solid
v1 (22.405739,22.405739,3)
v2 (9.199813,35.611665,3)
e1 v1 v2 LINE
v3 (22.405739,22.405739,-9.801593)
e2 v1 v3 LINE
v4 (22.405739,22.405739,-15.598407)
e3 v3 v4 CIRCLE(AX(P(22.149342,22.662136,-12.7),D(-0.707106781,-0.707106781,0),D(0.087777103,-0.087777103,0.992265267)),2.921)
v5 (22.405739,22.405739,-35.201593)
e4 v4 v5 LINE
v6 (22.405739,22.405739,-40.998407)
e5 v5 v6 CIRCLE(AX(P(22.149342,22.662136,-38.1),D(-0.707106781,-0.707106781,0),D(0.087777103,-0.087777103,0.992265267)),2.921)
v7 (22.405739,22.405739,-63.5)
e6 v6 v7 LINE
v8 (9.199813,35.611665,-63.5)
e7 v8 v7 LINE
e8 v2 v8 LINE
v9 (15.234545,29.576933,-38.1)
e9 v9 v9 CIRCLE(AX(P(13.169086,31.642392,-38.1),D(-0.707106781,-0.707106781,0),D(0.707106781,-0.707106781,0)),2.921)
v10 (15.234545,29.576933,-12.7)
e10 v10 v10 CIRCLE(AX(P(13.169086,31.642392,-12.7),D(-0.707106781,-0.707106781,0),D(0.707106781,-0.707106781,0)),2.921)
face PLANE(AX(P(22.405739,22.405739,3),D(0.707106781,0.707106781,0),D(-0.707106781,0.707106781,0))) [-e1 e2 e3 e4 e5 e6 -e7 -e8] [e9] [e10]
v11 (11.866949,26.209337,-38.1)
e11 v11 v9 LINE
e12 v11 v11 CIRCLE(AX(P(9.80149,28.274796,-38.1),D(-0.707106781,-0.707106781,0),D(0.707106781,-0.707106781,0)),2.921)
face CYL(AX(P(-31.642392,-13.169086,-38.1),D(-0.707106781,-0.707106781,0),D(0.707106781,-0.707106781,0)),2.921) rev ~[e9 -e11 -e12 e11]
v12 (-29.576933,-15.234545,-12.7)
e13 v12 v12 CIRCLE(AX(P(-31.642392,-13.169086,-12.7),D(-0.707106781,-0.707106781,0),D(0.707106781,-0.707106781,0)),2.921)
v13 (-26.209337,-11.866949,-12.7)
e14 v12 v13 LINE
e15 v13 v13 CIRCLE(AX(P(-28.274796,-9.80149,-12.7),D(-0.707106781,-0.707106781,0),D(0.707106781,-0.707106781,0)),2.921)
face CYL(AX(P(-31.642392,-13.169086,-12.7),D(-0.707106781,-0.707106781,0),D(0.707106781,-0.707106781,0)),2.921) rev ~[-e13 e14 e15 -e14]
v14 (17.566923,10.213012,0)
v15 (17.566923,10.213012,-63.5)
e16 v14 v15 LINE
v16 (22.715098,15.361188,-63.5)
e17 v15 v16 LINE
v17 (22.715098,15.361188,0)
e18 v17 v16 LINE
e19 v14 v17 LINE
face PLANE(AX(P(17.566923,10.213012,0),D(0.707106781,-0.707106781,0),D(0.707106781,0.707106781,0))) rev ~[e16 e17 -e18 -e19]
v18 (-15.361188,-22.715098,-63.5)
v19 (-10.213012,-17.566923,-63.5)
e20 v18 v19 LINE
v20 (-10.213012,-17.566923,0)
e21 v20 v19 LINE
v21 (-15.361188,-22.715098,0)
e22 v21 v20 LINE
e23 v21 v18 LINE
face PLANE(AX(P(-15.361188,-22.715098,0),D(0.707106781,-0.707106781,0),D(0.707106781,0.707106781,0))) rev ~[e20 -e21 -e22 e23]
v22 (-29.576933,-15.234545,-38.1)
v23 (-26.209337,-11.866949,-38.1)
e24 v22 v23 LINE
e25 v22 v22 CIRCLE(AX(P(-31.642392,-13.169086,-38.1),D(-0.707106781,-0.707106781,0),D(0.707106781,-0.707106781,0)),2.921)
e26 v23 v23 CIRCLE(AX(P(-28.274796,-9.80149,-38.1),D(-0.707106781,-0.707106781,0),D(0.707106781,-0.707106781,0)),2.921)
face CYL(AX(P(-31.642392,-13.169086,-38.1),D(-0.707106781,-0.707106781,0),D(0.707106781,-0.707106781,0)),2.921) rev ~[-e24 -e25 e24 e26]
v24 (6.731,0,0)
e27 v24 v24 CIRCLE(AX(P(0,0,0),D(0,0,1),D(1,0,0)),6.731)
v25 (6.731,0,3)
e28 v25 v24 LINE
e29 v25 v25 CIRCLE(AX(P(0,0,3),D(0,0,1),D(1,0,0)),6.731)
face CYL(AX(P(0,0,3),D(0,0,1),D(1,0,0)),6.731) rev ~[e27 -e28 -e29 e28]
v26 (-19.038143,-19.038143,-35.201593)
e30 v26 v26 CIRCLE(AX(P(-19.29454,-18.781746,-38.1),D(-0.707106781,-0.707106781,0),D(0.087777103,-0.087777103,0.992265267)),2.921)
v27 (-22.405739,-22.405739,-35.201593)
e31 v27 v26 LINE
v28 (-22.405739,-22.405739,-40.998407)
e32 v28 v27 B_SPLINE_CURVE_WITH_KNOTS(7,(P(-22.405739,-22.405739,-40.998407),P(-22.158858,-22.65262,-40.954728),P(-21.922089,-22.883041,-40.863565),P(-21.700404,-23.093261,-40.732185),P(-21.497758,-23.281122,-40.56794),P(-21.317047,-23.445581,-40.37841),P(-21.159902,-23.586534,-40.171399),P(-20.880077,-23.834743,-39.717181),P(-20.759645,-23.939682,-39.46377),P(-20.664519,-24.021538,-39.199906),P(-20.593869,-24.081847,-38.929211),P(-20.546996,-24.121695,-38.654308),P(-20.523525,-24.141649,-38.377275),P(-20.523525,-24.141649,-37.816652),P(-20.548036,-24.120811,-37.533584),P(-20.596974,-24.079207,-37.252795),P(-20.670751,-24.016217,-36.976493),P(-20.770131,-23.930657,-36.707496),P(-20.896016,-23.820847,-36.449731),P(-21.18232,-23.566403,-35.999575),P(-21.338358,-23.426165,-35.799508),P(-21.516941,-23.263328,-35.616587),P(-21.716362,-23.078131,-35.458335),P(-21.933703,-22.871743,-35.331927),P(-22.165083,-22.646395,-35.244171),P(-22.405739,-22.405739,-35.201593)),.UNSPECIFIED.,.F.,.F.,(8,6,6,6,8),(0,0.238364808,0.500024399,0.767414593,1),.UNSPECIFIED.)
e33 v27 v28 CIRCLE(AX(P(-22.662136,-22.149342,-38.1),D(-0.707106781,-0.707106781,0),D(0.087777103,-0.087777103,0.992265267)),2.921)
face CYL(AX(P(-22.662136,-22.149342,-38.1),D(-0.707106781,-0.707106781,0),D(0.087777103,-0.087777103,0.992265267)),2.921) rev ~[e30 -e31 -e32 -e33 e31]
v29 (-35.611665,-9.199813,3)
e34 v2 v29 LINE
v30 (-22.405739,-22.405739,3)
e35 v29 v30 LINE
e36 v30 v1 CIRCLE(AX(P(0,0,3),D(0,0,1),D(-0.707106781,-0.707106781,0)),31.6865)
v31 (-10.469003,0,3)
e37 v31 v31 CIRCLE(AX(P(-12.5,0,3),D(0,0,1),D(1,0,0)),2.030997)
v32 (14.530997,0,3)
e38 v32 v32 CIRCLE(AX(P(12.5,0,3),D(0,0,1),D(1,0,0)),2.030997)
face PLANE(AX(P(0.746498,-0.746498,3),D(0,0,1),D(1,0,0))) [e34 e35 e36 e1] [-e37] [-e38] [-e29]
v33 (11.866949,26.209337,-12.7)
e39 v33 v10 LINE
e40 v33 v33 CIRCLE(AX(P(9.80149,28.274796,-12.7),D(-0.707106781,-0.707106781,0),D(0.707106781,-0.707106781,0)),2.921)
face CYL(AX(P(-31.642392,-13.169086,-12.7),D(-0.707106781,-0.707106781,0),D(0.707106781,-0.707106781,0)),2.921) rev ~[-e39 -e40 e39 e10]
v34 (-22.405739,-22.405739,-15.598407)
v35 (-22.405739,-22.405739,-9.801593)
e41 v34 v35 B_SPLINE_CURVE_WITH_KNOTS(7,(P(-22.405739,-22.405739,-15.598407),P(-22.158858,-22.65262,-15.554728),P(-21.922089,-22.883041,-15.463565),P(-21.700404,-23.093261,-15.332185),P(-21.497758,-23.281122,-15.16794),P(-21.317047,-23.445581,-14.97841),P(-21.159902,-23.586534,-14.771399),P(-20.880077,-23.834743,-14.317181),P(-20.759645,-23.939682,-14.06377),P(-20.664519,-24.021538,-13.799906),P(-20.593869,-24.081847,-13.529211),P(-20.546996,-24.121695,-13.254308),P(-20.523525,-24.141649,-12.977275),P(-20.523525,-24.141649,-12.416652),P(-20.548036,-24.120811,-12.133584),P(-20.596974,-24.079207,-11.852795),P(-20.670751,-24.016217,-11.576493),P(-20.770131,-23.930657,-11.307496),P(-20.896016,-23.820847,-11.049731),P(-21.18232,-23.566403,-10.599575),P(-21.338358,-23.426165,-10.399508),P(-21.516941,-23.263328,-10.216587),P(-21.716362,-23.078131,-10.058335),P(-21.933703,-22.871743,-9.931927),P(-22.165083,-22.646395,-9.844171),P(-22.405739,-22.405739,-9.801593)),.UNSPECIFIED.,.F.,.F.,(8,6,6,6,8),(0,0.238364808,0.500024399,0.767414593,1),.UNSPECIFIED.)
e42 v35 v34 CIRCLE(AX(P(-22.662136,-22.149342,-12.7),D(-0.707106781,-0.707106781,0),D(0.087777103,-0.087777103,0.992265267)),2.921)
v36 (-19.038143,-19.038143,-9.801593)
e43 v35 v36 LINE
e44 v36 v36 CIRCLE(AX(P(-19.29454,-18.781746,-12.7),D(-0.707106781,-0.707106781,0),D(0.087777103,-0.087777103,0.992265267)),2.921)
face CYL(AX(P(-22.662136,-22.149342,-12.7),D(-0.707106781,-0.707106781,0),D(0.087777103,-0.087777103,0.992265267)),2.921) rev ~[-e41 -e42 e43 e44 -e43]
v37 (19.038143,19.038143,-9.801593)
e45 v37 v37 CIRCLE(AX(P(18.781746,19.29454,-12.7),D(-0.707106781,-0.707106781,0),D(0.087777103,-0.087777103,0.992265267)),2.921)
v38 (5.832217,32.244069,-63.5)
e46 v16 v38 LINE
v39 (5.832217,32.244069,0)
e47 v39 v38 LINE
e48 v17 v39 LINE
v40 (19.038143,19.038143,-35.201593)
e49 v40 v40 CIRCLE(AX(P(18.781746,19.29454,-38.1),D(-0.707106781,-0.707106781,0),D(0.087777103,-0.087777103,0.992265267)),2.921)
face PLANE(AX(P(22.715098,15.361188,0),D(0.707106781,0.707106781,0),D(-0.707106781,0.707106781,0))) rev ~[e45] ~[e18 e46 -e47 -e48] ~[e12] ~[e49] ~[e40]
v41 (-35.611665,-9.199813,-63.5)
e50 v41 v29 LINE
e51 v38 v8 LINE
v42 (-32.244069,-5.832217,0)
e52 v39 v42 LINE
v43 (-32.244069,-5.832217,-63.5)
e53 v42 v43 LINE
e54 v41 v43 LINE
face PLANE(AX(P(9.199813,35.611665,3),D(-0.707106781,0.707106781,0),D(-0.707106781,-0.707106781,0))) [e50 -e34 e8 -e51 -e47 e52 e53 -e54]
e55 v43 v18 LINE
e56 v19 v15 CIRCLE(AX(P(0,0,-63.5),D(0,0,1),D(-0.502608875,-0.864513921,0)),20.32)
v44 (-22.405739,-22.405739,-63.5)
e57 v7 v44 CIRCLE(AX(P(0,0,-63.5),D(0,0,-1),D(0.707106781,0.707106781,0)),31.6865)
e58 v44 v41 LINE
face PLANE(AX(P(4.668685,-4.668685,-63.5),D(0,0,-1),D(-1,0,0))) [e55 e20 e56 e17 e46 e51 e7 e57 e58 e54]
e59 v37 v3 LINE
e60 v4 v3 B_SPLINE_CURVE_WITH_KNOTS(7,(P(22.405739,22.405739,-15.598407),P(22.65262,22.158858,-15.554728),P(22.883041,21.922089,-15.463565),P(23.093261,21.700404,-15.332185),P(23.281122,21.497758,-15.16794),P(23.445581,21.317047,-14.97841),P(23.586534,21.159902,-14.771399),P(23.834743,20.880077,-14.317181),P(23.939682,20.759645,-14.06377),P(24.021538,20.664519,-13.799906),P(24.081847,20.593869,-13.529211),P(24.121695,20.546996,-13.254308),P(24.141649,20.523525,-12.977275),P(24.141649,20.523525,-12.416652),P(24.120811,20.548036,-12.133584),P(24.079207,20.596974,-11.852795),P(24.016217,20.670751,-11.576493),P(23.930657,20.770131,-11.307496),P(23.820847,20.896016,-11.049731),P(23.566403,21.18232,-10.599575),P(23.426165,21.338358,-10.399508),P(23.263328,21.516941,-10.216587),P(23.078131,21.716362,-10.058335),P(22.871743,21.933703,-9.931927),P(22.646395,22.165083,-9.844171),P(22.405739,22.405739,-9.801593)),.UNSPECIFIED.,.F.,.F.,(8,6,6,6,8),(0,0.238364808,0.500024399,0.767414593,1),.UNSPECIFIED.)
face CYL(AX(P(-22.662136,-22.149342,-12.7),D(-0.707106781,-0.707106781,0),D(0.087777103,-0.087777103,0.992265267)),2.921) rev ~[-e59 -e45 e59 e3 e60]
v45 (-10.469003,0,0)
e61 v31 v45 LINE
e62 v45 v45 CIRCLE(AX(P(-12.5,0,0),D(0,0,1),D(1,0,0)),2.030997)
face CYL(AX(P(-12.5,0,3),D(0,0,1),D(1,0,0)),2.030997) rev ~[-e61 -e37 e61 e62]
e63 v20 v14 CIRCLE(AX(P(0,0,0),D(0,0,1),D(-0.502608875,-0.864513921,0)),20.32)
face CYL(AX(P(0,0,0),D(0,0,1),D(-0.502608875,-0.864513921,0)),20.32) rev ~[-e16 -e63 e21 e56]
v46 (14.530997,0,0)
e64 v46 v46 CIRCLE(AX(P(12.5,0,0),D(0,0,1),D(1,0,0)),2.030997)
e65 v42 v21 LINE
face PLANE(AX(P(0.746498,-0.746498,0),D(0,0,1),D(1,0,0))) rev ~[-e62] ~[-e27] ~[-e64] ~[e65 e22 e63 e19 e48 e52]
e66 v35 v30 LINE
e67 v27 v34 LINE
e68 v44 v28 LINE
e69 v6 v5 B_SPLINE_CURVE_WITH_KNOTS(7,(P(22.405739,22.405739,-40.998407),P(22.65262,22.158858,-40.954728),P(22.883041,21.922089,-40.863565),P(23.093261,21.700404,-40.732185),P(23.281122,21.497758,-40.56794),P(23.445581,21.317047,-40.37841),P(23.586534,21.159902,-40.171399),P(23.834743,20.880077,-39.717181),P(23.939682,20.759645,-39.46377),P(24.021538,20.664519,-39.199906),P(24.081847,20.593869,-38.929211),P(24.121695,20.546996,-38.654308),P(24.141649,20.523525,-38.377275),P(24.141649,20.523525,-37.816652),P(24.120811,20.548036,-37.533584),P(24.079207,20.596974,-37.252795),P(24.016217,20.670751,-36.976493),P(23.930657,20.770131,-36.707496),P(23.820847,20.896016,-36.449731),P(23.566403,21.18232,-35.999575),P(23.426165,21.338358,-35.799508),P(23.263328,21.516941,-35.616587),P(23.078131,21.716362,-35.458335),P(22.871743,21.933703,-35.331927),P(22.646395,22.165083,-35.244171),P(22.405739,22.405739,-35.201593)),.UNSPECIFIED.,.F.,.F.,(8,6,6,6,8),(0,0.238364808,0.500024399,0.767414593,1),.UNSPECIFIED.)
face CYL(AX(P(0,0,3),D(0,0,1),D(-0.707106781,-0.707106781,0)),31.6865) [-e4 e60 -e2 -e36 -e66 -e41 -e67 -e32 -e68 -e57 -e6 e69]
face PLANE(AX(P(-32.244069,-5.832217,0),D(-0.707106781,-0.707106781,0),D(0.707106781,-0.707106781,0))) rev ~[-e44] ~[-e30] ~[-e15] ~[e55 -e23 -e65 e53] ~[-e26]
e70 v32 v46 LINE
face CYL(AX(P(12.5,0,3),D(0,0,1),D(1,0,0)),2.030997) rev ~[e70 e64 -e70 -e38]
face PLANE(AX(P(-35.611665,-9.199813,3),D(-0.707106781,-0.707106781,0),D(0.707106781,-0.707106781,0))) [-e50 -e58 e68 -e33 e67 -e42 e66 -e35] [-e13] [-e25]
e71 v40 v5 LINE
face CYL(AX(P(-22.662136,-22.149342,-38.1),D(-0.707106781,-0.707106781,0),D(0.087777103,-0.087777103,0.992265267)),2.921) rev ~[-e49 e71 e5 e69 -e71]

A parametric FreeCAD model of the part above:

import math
import FreeCAD as App
import Part
import Sketcher
from FreeCAD import Vector
Q = App.Units.Quantity

doc = App.newDocument("Part")
params = doc.addObject("Spreadsheet::Sheet", "Params")
for row, (alias, value) in enumerate([
    ("sketch1_radius", "0.8 in"),
    ("sketch1_length", "0.94 in"),
    ("sketch1_length2", "0.1875 in"),
    ("pad1_length", "2.5 in"),
    ("sketch2_diameter", "0.53 in"),
    ("pad2_length", "3 mm"),
    ("sketch3_diameter", "0.23 in"),
], start=1):
    params.set(f"A{row}", alias)
    params.set(f"B{row}", "=" + value)
    params.setAlias(f"B{row}", alias)

body = doc.addObject("PartDesign::Body", "Body")

sketch1 = doc.addObject("Sketcher::SketchObject", "Sketch")
body.addObject(sketch1)
sketch1.AttachmentSupport = (doc.XY_Plane, [""])
sketch1.MapMode = "FlatFace"
sketch1.addGeometry([
    Part.LineSegment(Vector(9.199813, 35.611665, 0), Vector(5.832217, 32.244069, 0)),
    Part.LineSegment(Vector(5.832217, 32.244069, 0), Vector(22.715098, 15.361188, 0)),
    Part.LineSegment(Vector(22.715098, 15.361188, 0), Vector(17.566923, 10.213012, 0)),
    Part.ArcOfCircle(Part.Circle(Vector(0, 0, 0), Vector(0, 0, 1), 20.32), math.radians(-120.172752), math.radians(30.172752)),
    Part.LineSegment(Vector(-10.213012, -17.566923, 0), Vector(-15.361188, -22.715098, 0)),
    Part.LineSegment(Vector(-15.361188, -22.715098, 0), Vector(-32.244069, -5.832217, 0)),
    Part.LineSegment(Vector(-32.244069, -5.832217, 0), Vector(-35.611665, -9.199813, 0)),
    Part.LineSegment(Vector(-35.611665, -9.199813, 0), Vector(-22.405739, -22.405739, 0)),
    Part.ArcOfCircle(Part.Circle(Vector(0, 0, 0), Vector(0, 0, 1), 31.6865), math.radians(-135), math.radians(45)),
    Part.LineSegment(Vector(22.405739, 22.405739, 0), Vector(9.199813, 35.611665, 0)),
], False)
sketch1.addConstraint([
    Sketcher.Constraint("Coincident", 0, 2, 1, 1),
    Sketcher.Constraint("Coincident", 1, 2, 2, 1),
    Sketcher.Constraint("Coincident", 2, 2, 3, 2),
    Sketcher.Constraint("Coincident", 3, 1, 4, 1),
    Sketcher.Constraint("Coincident", 4, 2, 5, 1),
    Sketcher.Constraint("Coincident", 5, 2, 6, 1),
    Sketcher.Constraint("Coincident", 6, 2, 7, 1),
    Sketcher.Constraint("Tangent", 7, 2, 8, 1),
    Sketcher.Constraint("Tangent", 8, 2, 9, 1),
    Sketcher.Constraint("Coincident", 9, 2, 0, 1),
    Sketcher.Constraint("Coincident", 3, 3, -1, 1),
    Sketcher.Constraint("Coincident", 8, 3, -1, 1),
    Sketcher.Constraint("Perpendicular", 0, 1),
    Sketcher.Constraint("Perpendicular", 1, 2),
    Sketcher.Constraint("Parallel", 2, 4),
    Sketcher.Constraint("Perpendicular", 4, 5),
    Sketcher.Constraint("Perpendicular", 5, 6),
    Sketcher.Constraint("Perpendicular", 6, 7),
    Sketcher.Constraint("Parallel", 7, 9),
    Sketcher.Constraint("Equal", 2, 4),
    Sketcher.Constraint("Equal", 1, 5),
    Sketcher.Constraint("Equal", 0, 6),
    Sketcher.Constraint("Radius", 3, Q("0.8 in")),
    Sketcher.Constraint("Angle", 0, Q("-135 deg")),
    Sketcher.Constraint("Radius", 8, Q("1.2475 in")),
    Sketcher.Constraint("Distance", 1, Q("0.94 in")),
    Sketcher.Constraint("Distance", 0, Q("0.1875 in")),
    Sketcher.Constraint("Distance", 7, 18.676),
])
sketch1.setExpression("Constraints[22]", "Params.sketch1_radius")
sketch1.setExpression("Constraints[25]", "Params.sketch1_length")
sketch1.setExpression("Constraints[26]", "Params.sketch1_length2")
pad1 = doc.addObject("PartDesign::Pad", "Pad")
body.addObject(pad1)
pad1.Profile = sketch1
pad1.setExpression("Length", "Params.pad1_length")
pad1.Reversed = True

sketch2 = doc.addObject("Sketcher::SketchObject", "Sketch001")
body.addObject(sketch2)
sketch2.AttachmentSupport = (doc.XY_Plane, [""])
sketch2.MapMode = "FlatFace"
sketch2.AttachmentOffset = App.Placement(Vector(0, 0, 3), App.Rotation())
sketch2.addGeometry([
    Part.LineSegment(Vector(9.199813, 35.611665, 0), Vector(-35.611665, -9.199813, 0)),
    Part.LineSegment(Vector(-35.611665, -9.199813, 0), Vector(-22.405739, -22.405739, 0)),
    Part.ArcOfCircle(Part.Circle(Vector(0, 0, 0), Vector(0, 0, 1), 31.6865), math.radians(-135), math.radians(45)),
    Part.LineSegment(Vector(22.405739, 22.405739, 0), Vector(9.199813, 35.611665, 0)),
    Part.Circle(Vector(-12.5, 0, 0), Vector(0, 0, 1), 2.030997),
    Part.Circle(Vector(0, 0, 0), Vector(0, 0, 1), 6.731),
    Part.Circle(Vector(12.5, 0, 0), Vector(0, 0, 1), 2.030997),
], False)
sketch2.addConstraint([
    Sketcher.Constraint("Coincident", 0, 2, 1, 1),
    Sketcher.Constraint("Tangent", 1, 2, 2, 1),
    Sketcher.Constraint("Tangent", 2, 2, 3, 1),
    Sketcher.Constraint("Coincident", 3, 2, 0, 1),
    Sketcher.Constraint("Coincident", 2, 3, -1, 1),
    Sketcher.Constraint("Coincident", 5, 3, -1, 1),
    Sketcher.Constraint("Equal", 4, 6),
    Sketcher.Constraint("Symmetric", 4, 3, 6, 3, -1, 1),
    Sketcher.Constraint("PointOnObject", 4, 3, -1),
    Sketcher.Constraint("Perpendicular", 0, 1),
    Sketcher.Constraint("Parallel", 1, 3),
    Sketcher.Constraint("Diameter", 5, Q("0.53 in")),
    Sketcher.Constraint("Angle", 0, Q("-135 deg")),
    Sketcher.Constraint("Radius", 2, Q("1.2475 in")),
    Sketcher.Constraint("Diameter", 4, 4.061993),
    Sketcher.Constraint("Distance", 1, 18.676),
    Sketcher.Constraint("DistanceX", 4, 3, -1, 1, 12.5),
])
sketch2.setExpression("Constraints[11]", "Params.sketch2_diameter")
pad2 = doc.addObject("PartDesign::Pad", "Pad001")
body.addObject(pad2)
pad2.Profile = sketch2
pad2.setExpression("Length", "Params.pad2_length")
pad2.Reversed = True

sketch3 = doc.addObject("Sketcher::SketchObject", "Sketch002")
body.addObject(sketch3)
sketch3.Placement = App.Placement(Vector(-22.405739, -22.405739, 0), App.Rotation(Vector(0, 0, 1), Vector(-0.707106781, 0.707106781, 0), Vector(-0.707106781, -0.707106781, 0), "ZXY"))
sketch3.addGeometry([
    Part.Circle(Vector(-12.7, 0.3626, 0), Vector(0, 0, 1), 2.921),
    Part.Circle(Vector(-12.7, 13.0626, 0), Vector(0, 0, 1), 2.921),
    Part.Circle(Vector(-38.1, 13.0626, 0), Vector(0, 0, 1), 2.921),
    Part.Circle(Vector(-38.1, 0.3626, 0), Vector(0, 0, 1), 2.921),
], False)
sketch3.addConstraint([
    Sketcher.Constraint("Equal", 0, 1),
    Sketcher.Constraint("Equal", 1, 2),
    Sketcher.Constraint("Equal", 2, 3),
    Sketcher.Constraint("Horizontal", 1, 3, 2, 3),
    Sketcher.Constraint("Horizontal", 0, 3, 3, 3),
    Sketcher.Constraint("Vertical", 0, 3, 1, 3),
    Sketcher.Constraint("Vertical", 2, 3, 3, 3),
    Sketcher.Constraint("Diameter", 0, Q("0.23 in")),
    Sketcher.Constraint("DistanceX", 2, 3, 1, 3, Q("1 in")),
    Sketcher.Constraint("DistanceX", 0, 3, -1, 1, Q("0.5 in")),
    Sketcher.Constraint("DistanceY", 0, 3, 1, 3, Q("0.5 in")),
    Sketcher.Constraint("DistanceY", -1, 1, 0, 3, 0.3626),
])
sketch3.setExpression("Constraints[7]", "Params.sketch3_diameter")
pocket1 = doc.addObject("PartDesign::Pocket", "Pocket")
body.addObject(pocket1)
pocket1.Profile = sketch3
pocket1.Type = "ThroughAll"

doc.recompute()
